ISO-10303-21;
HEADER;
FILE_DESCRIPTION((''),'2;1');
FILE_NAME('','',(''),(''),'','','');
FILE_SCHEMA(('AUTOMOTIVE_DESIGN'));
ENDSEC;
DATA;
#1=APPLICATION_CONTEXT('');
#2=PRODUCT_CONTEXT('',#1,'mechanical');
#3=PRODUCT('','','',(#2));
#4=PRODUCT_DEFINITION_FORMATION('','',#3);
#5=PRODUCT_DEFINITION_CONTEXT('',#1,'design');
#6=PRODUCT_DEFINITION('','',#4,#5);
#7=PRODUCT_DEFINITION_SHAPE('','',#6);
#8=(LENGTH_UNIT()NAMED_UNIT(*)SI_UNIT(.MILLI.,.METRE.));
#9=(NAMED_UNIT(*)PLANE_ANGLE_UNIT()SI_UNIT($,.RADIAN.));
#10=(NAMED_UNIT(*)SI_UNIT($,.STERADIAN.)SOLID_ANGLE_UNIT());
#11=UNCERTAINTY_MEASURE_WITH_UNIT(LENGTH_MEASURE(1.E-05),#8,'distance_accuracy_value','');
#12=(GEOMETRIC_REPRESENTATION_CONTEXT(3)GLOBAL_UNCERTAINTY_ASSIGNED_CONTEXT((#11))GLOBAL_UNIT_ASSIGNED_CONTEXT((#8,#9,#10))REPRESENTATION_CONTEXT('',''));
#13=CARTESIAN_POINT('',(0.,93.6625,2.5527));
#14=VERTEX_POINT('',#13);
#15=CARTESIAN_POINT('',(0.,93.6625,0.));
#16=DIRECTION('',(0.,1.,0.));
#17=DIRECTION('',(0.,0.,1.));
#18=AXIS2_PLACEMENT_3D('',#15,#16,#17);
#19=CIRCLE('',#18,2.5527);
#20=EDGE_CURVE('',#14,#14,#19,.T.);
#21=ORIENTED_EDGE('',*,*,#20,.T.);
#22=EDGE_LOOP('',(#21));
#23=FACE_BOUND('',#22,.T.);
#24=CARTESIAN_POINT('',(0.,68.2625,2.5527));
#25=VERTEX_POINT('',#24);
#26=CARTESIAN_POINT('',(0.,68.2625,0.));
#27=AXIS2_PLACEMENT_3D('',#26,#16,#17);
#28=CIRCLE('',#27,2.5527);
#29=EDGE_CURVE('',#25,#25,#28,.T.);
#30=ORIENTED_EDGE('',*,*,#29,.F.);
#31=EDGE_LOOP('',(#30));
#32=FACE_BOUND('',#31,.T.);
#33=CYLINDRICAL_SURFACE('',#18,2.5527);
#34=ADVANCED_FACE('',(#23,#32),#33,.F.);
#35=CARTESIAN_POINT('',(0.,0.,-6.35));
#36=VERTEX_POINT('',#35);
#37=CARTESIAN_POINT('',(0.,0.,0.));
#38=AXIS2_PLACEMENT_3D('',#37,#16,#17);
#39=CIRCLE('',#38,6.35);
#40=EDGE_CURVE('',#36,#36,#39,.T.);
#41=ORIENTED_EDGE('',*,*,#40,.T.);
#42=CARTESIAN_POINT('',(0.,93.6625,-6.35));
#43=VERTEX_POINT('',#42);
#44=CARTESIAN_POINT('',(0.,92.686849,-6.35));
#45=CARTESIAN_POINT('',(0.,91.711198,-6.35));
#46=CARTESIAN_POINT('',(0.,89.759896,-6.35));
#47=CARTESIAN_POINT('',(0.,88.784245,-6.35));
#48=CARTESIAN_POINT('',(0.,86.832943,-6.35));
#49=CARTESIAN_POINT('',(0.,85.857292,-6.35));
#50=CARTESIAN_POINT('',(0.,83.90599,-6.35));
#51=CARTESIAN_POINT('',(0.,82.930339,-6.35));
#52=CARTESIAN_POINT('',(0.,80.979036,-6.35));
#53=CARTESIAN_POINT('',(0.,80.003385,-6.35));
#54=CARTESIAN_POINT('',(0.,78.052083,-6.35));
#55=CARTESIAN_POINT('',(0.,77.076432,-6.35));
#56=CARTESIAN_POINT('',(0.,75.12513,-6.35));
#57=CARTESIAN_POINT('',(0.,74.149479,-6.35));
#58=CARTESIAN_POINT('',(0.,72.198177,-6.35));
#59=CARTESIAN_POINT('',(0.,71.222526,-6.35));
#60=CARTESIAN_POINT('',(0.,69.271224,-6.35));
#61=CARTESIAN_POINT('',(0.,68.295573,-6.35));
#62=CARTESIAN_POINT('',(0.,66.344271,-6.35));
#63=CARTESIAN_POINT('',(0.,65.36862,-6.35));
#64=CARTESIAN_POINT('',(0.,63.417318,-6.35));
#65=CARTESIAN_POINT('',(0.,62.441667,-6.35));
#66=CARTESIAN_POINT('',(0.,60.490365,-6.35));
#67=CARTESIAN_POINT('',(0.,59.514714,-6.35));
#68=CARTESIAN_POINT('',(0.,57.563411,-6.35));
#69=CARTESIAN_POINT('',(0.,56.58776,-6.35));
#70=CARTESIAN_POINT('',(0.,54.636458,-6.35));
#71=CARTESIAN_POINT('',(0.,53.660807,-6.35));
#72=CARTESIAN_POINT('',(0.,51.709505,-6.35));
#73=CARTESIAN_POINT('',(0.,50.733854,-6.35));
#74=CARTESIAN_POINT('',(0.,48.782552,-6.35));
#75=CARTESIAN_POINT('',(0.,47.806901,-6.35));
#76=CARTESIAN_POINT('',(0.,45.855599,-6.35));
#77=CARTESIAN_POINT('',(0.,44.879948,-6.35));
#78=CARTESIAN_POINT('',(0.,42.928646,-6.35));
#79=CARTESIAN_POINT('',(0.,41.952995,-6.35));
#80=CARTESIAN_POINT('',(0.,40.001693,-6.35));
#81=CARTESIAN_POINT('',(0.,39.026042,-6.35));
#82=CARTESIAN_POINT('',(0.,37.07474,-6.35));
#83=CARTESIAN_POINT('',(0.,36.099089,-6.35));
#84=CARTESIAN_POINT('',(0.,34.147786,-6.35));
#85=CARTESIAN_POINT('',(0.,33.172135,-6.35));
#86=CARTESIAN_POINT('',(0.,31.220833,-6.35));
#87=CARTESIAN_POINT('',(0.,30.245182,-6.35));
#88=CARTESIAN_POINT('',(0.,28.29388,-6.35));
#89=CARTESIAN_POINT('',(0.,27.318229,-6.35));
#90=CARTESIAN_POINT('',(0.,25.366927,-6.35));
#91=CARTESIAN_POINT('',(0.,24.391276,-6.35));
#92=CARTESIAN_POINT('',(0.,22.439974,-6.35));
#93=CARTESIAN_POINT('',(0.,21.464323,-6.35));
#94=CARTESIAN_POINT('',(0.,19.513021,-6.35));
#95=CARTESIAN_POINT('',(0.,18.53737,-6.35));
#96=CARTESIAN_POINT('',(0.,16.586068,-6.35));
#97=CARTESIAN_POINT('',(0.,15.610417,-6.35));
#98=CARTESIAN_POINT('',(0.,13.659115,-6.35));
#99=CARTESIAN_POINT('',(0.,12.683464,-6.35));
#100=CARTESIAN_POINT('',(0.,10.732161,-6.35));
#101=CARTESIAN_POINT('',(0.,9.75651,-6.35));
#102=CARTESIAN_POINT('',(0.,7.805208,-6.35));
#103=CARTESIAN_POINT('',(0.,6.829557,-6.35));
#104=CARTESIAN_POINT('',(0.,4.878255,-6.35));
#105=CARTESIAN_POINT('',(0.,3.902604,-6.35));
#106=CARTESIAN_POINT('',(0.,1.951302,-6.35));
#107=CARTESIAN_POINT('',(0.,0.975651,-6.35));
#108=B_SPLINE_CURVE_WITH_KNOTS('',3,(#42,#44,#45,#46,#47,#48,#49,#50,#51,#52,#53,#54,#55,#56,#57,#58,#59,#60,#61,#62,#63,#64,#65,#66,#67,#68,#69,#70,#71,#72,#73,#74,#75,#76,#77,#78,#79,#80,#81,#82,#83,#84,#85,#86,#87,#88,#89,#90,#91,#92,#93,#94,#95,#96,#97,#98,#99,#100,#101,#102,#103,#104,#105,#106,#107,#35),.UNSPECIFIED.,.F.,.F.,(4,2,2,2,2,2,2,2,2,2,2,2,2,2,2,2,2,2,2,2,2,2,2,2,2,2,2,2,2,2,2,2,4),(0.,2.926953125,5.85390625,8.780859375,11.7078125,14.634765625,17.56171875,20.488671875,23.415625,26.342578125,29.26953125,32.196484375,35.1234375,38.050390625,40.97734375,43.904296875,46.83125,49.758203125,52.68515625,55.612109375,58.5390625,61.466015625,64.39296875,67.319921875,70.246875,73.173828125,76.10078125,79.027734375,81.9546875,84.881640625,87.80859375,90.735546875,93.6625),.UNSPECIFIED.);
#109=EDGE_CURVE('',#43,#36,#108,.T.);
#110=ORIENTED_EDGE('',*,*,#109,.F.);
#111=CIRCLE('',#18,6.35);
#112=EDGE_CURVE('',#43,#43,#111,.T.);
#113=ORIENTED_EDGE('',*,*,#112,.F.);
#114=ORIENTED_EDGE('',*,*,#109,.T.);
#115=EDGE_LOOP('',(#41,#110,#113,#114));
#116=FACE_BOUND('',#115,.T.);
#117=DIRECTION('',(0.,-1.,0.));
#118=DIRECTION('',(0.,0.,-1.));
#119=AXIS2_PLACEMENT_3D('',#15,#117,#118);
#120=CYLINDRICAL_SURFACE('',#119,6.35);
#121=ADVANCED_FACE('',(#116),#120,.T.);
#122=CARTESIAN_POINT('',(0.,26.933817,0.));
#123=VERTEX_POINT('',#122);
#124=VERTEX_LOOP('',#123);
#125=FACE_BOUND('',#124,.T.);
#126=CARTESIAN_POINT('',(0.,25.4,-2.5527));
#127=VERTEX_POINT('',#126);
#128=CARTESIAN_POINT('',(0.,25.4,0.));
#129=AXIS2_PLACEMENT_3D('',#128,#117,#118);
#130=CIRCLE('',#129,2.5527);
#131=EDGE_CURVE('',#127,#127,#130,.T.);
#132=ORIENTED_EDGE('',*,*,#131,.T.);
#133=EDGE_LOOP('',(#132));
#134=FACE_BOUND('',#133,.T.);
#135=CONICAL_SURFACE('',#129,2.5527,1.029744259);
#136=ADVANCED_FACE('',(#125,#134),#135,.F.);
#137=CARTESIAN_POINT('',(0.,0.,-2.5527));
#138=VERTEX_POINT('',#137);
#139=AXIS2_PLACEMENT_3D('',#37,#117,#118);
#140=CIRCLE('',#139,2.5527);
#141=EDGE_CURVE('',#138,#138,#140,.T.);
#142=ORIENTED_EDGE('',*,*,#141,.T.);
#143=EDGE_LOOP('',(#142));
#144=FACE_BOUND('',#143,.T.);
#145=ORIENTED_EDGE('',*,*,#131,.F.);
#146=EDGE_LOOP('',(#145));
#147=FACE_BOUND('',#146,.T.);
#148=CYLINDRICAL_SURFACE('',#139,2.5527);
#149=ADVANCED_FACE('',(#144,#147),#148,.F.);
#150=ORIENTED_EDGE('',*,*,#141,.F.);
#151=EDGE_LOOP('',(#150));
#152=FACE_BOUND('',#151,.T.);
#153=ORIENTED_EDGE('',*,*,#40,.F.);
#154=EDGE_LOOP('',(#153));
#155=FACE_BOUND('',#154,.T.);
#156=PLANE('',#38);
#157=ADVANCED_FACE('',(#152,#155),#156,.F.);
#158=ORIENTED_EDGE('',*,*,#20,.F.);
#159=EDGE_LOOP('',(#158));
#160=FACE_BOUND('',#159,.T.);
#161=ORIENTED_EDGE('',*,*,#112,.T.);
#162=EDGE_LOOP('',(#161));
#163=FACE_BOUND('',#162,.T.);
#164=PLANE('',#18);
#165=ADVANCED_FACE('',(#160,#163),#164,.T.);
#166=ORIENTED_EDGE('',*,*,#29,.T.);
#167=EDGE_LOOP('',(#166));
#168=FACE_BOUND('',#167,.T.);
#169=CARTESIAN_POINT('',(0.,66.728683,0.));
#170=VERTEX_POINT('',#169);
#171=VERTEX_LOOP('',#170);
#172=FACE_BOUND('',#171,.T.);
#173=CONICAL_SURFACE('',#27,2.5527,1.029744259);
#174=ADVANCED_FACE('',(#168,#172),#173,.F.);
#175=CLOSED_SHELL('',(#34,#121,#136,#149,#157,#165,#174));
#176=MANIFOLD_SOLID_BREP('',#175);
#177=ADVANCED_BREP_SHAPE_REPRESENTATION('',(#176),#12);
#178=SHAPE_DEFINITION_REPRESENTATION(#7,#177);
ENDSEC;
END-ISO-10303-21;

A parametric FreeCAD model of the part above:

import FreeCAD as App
import Part
import Sketcher

V = App.Vector
Q = App.Units.Quantity

doc = App.newDocument("Part")
body = doc.addObject("PartDesign::Body", "Body")

sketch1 = body.newObject("Sketcher::SketchObject", "Sketch")
sketch1.AttachmentSupport = (doc.getObject("XZ_Plane"), [""])
sketch1.MapMode = "FlatFace"
sketch1.addGeometry(Part.Circle(V(0, 0, 0), V(0, 0, 1), 6), False)
sketch1.addConstraint([
    Sketcher.Constraint("Coincident", 0, 3, -1, 1),
    Sketcher.Constraint("Diameter", 0, Q("0.5 in")),
])
pad1 = body.newObject("PartDesign::Pad", "Pad")
pad1.Profile = sketch1
pad1.Length = Q("3.6875 in")
pad1.Reversed = True

sketch2 = body.newObject("Sketcher::SketchObject", "Sketch001")
sketch2.AttachmentSupport = (doc.getObject("XZ_Plane"), [""])
sketch2.MapMode = "FlatFace"
sketch2.AttachmentOffset = App.Placement(V(0, 0, -3.6875 * 25.4), App.Rotation())
sketch2.addGeometry(Part.Circle(V(0, 0, 0), V(0, 0, 1), 2.6), False)
sketch2.addConstraint([
    Sketcher.Constraint("Coincident", 0, 3, -1, 1),
    Sketcher.Constraint("Diameter", 0, Q("0.201 in")),
])
doc.recompute()
hole = body.newObject("PartDesign::Hole", "Hole")
hole.Profile = sketch2
hole.ThreadType = "None"
hole.Diameter = Q("0.201 in")
hole.DepthType = "Dimension"
hole.Depth = Q("1 in")
hole.DrillPoint = "Angled"
hole.DrillPointAngle = 118
hole.Reversed = True

sketch3 = body.newObject("Sketcher::SketchObject", "Sketch002")
sketch3.AttachmentSupport = (doc.getObject("XZ_Plane"), [""])
sketch3.MapMode = "FlatFace"
sketch3.addGeometry(Part.Circle(V(0, 0, 0), V(0, 0, 1), 2.6), False)
sketch3.addConstraint([
    Sketcher.Constraint("Coincident", 0, 3, -1, 1),
    Sketcher.Constraint("Diameter", 0, Q("0.201 in")),
])
doc.recompute()
hole2 = body.newObject("PartDesign::Hole", "Hole001")
hole2.Profile = sketch3
hole2.ThreadType = "None"
hole2.Diameter = Q("0.201 in")
hole2.DepthType = "Dimension"
hole2.Depth = Q("1 in")
hole2.DrillPoint = "Angled"
hole2.DrillPointAngle = 118

doc.recompute()
